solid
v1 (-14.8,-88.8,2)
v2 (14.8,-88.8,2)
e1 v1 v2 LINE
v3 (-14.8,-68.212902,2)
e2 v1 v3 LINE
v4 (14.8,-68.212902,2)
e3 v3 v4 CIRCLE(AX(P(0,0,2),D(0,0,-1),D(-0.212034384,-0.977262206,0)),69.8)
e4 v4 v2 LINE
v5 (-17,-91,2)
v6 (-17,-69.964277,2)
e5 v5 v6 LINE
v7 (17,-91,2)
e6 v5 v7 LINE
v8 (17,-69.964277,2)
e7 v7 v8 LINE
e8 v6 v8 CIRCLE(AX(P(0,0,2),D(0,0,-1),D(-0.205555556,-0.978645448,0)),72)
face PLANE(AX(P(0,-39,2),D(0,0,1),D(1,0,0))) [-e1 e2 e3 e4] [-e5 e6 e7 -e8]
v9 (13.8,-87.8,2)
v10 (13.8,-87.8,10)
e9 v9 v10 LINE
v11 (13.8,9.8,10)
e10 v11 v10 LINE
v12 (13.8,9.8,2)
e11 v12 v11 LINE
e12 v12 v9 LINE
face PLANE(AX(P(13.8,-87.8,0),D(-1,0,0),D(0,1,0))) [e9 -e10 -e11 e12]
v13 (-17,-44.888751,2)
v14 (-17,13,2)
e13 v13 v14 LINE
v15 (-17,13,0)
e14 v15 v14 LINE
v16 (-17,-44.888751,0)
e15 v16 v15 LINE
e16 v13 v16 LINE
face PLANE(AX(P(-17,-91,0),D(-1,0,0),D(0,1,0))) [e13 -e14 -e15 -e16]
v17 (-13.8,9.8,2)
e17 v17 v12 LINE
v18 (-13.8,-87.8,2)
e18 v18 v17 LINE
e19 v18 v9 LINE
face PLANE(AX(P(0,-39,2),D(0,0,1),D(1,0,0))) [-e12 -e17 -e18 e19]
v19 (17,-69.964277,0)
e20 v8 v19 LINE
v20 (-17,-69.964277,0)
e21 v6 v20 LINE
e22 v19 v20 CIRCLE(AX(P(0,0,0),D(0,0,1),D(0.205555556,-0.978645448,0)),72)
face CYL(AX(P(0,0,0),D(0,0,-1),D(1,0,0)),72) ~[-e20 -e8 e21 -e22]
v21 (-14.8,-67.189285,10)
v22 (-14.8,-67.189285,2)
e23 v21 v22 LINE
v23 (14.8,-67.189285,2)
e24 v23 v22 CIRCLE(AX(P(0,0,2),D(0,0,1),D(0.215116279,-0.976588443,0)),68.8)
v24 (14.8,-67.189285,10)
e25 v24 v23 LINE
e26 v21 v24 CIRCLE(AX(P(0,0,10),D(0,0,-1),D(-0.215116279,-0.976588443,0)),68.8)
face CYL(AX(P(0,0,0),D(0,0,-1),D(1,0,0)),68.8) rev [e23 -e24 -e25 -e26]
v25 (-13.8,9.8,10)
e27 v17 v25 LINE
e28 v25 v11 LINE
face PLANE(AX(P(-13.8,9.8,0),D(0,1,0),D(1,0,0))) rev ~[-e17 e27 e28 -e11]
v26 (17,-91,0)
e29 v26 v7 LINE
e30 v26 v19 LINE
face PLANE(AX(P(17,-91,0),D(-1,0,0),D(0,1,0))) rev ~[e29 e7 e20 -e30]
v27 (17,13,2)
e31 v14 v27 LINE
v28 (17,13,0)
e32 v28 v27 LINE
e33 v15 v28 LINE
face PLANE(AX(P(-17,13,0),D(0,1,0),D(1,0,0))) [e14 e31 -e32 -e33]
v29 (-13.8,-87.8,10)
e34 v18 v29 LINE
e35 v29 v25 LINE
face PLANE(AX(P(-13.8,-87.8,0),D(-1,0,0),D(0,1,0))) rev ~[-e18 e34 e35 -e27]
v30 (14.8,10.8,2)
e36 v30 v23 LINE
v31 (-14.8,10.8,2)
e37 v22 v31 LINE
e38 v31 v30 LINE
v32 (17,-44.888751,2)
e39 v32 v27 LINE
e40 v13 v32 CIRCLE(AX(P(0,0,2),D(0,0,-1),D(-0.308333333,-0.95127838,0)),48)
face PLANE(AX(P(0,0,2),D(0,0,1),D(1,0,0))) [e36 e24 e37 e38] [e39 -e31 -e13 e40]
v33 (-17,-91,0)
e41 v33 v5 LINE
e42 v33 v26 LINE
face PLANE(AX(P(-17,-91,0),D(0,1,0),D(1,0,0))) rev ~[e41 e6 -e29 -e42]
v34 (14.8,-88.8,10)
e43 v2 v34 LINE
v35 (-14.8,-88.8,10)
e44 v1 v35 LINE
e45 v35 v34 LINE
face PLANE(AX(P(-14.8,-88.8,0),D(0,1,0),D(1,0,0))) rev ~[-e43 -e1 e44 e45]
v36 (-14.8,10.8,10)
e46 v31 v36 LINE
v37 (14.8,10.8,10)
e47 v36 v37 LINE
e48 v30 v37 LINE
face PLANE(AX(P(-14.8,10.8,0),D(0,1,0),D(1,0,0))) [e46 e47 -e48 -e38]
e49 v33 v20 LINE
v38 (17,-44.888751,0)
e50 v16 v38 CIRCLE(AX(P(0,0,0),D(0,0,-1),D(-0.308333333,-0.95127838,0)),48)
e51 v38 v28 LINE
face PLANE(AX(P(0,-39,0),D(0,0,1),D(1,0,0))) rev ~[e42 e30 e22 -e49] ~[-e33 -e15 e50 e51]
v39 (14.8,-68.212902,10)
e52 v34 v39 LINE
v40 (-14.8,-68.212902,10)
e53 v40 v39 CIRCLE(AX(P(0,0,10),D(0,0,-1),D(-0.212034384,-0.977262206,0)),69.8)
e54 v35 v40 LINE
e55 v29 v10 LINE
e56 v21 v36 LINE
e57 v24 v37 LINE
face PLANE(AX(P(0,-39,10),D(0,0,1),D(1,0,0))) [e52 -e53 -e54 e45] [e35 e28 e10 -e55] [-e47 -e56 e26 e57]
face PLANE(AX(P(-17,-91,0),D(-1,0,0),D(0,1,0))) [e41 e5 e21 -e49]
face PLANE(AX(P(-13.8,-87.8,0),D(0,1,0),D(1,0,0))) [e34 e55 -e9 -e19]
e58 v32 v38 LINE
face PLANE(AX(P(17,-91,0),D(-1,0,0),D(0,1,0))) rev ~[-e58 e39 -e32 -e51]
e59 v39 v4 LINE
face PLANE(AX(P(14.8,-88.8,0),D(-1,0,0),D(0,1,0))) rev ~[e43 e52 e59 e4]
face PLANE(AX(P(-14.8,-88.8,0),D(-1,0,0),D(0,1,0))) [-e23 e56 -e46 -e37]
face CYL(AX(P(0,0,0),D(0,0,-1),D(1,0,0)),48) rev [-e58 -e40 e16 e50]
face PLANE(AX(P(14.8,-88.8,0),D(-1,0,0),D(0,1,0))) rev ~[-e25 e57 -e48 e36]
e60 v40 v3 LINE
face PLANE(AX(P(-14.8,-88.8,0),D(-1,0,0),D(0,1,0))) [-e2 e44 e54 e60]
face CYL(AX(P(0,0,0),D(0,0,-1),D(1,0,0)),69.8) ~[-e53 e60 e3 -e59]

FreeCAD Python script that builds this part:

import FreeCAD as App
import Part
import Sketcher

doc = App.newDocument("Part")
params = doc.addObject("Spreadsheet::Sheet", "Params")
for row, (alias, value) in enumerate([
    ("sketch1_diameter", "139.6 mm"),
    ("sketch1_diameter2", "137.6 mm"),
    ("pad1_length", "10 mm"),
    ("sketch2_width", "29.6 mm"),
    ("sketch2_width2", "27.6 mm"),
    ("sketch2_height", "99.6 mm"),
    ("sketch2_height2", "97.6 mm"),
    ("pad2_length", "10 mm"),
    ("sketch3_diameter", "96 mm"),
    ("sketch3_diameter2", "137.6 mm"),
    ("pad3_length", "2 mm"),
    ("sketch4_diameter", "144 mm"),
    ("sketch4_diameter2", "139.6 mm"),
    ("pad4_length", "2 mm"),
    ("sketch5_width", "34 mm"),
    ("sketch5_height", "104 mm"),
    ("sketch5_width2", "29.6 mm"),
    ("sketch5_height2", "99.6 mm"),
    ("pad5_length", "2 mm"),
    ("sketch6_width", "27.6 mm"),
    ("sketch6_height", "97.6 mm"),
    ("pad6_length", "2 mm"),
    ("sketch7_height", "8 mm"),
    ("sketch7_width", "27.6 mm"),
    ("pocket1_length", "70 mm"),
], start=1):
    params.set(f"A{row}", alias)
    params.set(f"B{row}", "=" + value)
    params.setAlias(f"B{row}", alias)

body = doc.addObject("PartDesign::Body", "Body")

# Sketch on XY plane
sketch1 = doc.addObject("Sketcher::SketchObject", "Sketch")
body.addObject(sketch1)
sketch1.AttachmentSupport = (doc.XY_Plane, [""])
sketch1.MapMode = "FlatFace"
sketch1.addGeometry([
    Part.Circle(App.Vector(0, 0, 0), App.Vector(0, 0, 1), 70),
    Part.Circle(App.Vector(0, 0, 0), App.Vector(0, 0, 1), 69),
], False)
sketch1.addConstraint([
    Sketcher.Constraint("Coincident", 0, 3, -1, 1),
    Sketcher.Constraint("Coincident", 1, 3, -1, 1),
    Sketcher.Constraint("Diameter", 0, 139.6),
    Sketcher.Constraint("Diameter", 1, 137.6),
])
sketch1.setExpression("Constraints[2]", "Params.sketch1_diameter")
sketch1.setExpression("Constraints[3]", "Params.sketch1_diameter2")
pad1 = doc.addObject("PartDesign::Pad", "Pad")
body.addObject(pad1)
pad1.Profile = sketch1
pad1.setExpression("Length", "Params.pad1_length")

# Sketch on XY plane
sketch2 = doc.addObject("Sketcher::SketchObject", "Sketch001")
body.addObject(sketch2)
sketch2.AttachmentSupport = (doc.XY_Plane, [""])
sketch2.MapMode = "FlatFace"
sketch2.addGeometry([
    Part.LineSegment(App.Vector(-15, 11, 0), App.Vector(-15, -89, 0)),  # 0
    Part.LineSegment(App.Vector(-15, -89, 0), App.Vector(15, -89, 0)),  # 1
    Part.LineSegment(App.Vector(15, -89, 0), App.Vector(15, 11, 0)),  # 2
    Part.LineSegment(App.Vector(15, 11, 0), App.Vector(-15, 11, 0)),  # 3
    Part.LineSegment(App.Vector(14, -88, 0), App.Vector(-14, -88, 0)),  # 4
    Part.LineSegment(App.Vector(-14, -88, 0), App.Vector(-14, 10, 0)),  # 5
    Part.LineSegment(App.Vector(-14, 10, 0), App.Vector(14, 10, 0)),  # 6
    Part.LineSegment(App.Vector(14, 10, 0), App.Vector(14, -88, 0)),  # 7
], False)
sketch2.addConstraint([
    Sketcher.Constraint("Coincident", 0, 2, 1, 1),
    Sketcher.Constraint("Coincident", 1, 2, 2, 1),
    Sketcher.Constraint("Coincident", 2, 2, 3, 1),
    Sketcher.Constraint("Coincident", 3, 2, 0, 1),
    Sketcher.Constraint("Coincident", 4, 2, 5, 1),
    Sketcher.Constraint("Coincident", 5, 2, 6, 1),
    Sketcher.Constraint("Coincident", 6, 2, 7, 1),
    Sketcher.Constraint("Coincident", 7, 2, 4, 1),
    Sketcher.Constraint("Vertical", 0),
    Sketcher.Constraint("Horizontal", 1),
    Sketcher.Constraint("Vertical", 2),
    Sketcher.Constraint("Horizontal", 3),
    Sketcher.Constraint("Horizontal", 4),
    Sketcher.Constraint("Vertical", 5),
    Sketcher.Constraint("Horizontal", 6),
    Sketcher.Constraint("Vertical", 7),
    Sketcher.Constraint("DistanceX", 1, 1, 1, 2, 29.6),
    Sketcher.Constraint("DistanceX", 4, 2, 4, 1, 27.6),
    Sketcher.Constraint("DistanceY", 0, 2, 0, 1, 99.6),
    Sketcher.Constraint("DistanceY", 5, 1, 5, 2, 97.6),
    Sketcher.Constraint("DistanceX", 0, 2, 4, 2, 1.0),
    Sketcher.Constraint("DistanceY", 0, 2, 4, 2, 1.0),
    Sketcher.Constraint("DistanceX", 0, 2, -1, 1, 14.8),
    Sketcher.Constraint("DistanceY", 0, 2, -1, 1, 88.8),
])
sketch2.setExpression("Constraints[16]", "Params.sketch2_width")
sketch2.setExpression("Constraints[17]", "Params.sketch2_width2")
sketch2.setExpression("Constraints[18]", "Params.sketch2_height")
sketch2.setExpression("Constraints[19]", "Params.sketch2_height2")
pad2 = doc.addObject("PartDesign::Pad", "Pad001")
body.addObject(pad2)
pad2.Profile = sketch2
pad2.setExpression("Length", "Params.pad2_length")

# Sketch on XY plane
sketch3 = doc.addObject("Sketcher::SketchObject", "Sketch002")
body.addObject(sketch3)
sketch3.AttachmentSupport = (doc.XY_Plane, [""])
sketch3.MapMode = "FlatFace"
sketch3.addGeometry([
    Part.Circle(App.Vector(0, 0, 0), App.Vector(0, 0, 1), 69),
    Part.Circle(App.Vector(0, 0, 0), App.Vector(0, 0, 1), 48),
], False)
sketch3.addConstraint([
    Sketcher.Constraint("Coincident", 0, 3, -1, 1),
    Sketcher.Constraint("Coincident", 1, 3, -1, 1),
    Sketcher.Constraint("Diameter", 1, 96.0),
    Sketcher.Constraint("Diameter", 0, 137.6),
])
sketch3.setExpression("Constraints[2]", "Params.sketch3_diameter")
sketch3.setExpression("Constraints[3]", "Params.sketch3_diameter2")
pad3 = doc.addObject("PartDesign::Pad", "Pad002")
body.addObject(pad3)
pad3.Profile = sketch3
pad3.setExpression("Length", "Params.pad3_length")

# Sketch on XY plane
sketch4 = doc.addObject("Sketcher::SketchObject", "Sketch003")
body.addObject(sketch4)
sketch4.AttachmentSupport = (doc.XY_Plane, [""])
sketch4.MapMode = "FlatFace"
sketch4.addGeometry([
    Part.Circle(App.Vector(0, 0, 0), App.Vector(0, 0, 1), 72),
    Part.Circle(App.Vector(0, 0, 0), App.Vector(0, 0, 1), 70),
], False)
sketch4.addConstraint([
    Sketcher.Constraint("Coincident", 0, 3, -1, 1),
    Sketcher.Constraint("Coincident", 1, 3, -1, 1),
    Sketcher.Constraint("Diameter", 0, 144.0),
    Sketcher.Constraint("Diameter", 1, 139.6),
])
sketch4.setExpression("Constraints[2]", "Params.sketch4_diameter")
sketch4.setExpression("Constraints[3]", "Params.sketch4_diameter2")
pad4 = doc.addObject("PartDesign::Pad", "Pad003")
body.addObject(pad4)
pad4.Profile = sketch4
pad4.setExpression("Length", "Params.pad4_length")

# Sketch on XY plane
sketch5 = doc.addObject("Sketcher::SketchObject", "Sketch004")
body.addObject(sketch5)
sketch5.AttachmentSupport = (doc.XY_Plane, [""])
sketch5.MapMode = "FlatFace"
sketch5.addGeometry([
    Part.LineSegment(App.Vector(-17, 13, 0), App.Vector(-17, -91, 0)),  # 0
    Part.LineSegment(App.Vector(-17, -91, 0), App.Vector(17, -91, 0)),  # 1
    Part.LineSegment(App.Vector(17, -91, 0), App.Vector(17, 13, 0)),  # 2
    Part.LineSegment(App.Vector(17, 13, 0), App.Vector(-17, 13, 0)),  # 3
    Part.LineSegment(App.Vector(15, -89, 0), App.Vector(-15, -89, 0)),  # 4
    Part.LineSegment(App.Vector(-15, -89, 0), App.Vector(-15, 11, 0)),  # 5
    Part.LineSegment(App.Vector(-15, 11, 0), App.Vector(15, 11, 0)),  # 6
    Part.LineSegment(App.Vector(15, 11, 0), App.Vector(15, -89, 0)),  # 7
], False)
sketch5.addConstraint([
    Sketcher.Constraint("Coincident", 0, 2, 1, 1),
    Sketcher.Constraint("Coincident", 1, 2, 2, 1),
    Sketcher.Constraint("Coincident", 2, 2, 3, 1),
    Sketcher.Constraint("Coincident", 3, 2, 0, 1),
    Sketcher.Constraint("Coincident", 4, 2, 5, 1),
    Sketcher.Constraint("Coincident", 5, 2, 6, 1),
    Sketcher.Constraint("Coincident", 6, 2, 7, 1),
    Sketcher.Constraint("Coincident", 7, 2, 4, 1),
    Sketcher.Constraint("Vertical", 0),
    Sketcher.Constraint("Horizontal", 1),
    Sketcher.Constraint("Vertical", 2),
    Sketcher.Constraint("Horizontal", 3),
    Sketcher.Constraint("Horizontal", 4),
    Sketcher.Constraint("Vertical", 5),
    Sketcher.Constraint("Horizontal", 6),
    Sketcher.Constraint("Vertical", 7),
    Sketcher.Constraint("DistanceX", 1, 1, 1, 2, 34.0),
    Sketcher.Constraint("DistanceY", 0, 2, 0, 1, 104.0),
    Sketcher.Constraint("DistanceX", 4, 2, 4, 1, 29.6),
    Sketcher.Constraint("DistanceY", 5, 1, 5, 2, 99.6),
    Sketcher.Constraint("DistanceX", 0, 2, -1, 1, 17.0),
    Sketcher.Constraint("DistanceY", 0, 2, -1, 1, 91.0),
    Sketcher.Constraint("DistanceX", 4, 2, -1, 1, 14.8),
    Sketcher.Constraint("DistanceY", 4, 2, -1, 1, 88.8),
])
sketch5.setExpression("Constraints[16]", "Params.sketch5_width")
sketch5.setExpression("Constraints[17]", "Params.sketch5_height")
sketch5.setExpression("Constraints[18]", "Params.sketch5_width2")
sketch5.setExpression("Constraints[19]", "Params.sketch5_height2")
pad5 = doc.addObject("PartDesign::Pad", "Pad004")
body.addObject(pad5)
pad5.Profile = sketch5
pad5.setExpression("Length", "Params.pad5_length")

# Sketch on XY plane
sketch6 = doc.addObject("Sketcher::SketchObject", "Sketch005")
body.addObject(sketch6)
sketch6.AttachmentSupport = (doc.XY_Plane, [""])
sketch6.MapMode = "FlatFace"
sketch6.addGeometry([
    Part.LineSegment(App.Vector(-14, 10, 0), App.Vector(-14, -88, 0)),
    Part.LineSegment(App.Vector(-14, -88, 0), App.Vector(14, -88, 0)),
    Part.LineSegment(App.Vector(14, -88, 0), App.Vector(14, 10, 0)),
    Part.LineSegment(App.Vector(14, 10, 0), App.Vector(-14, 10, 0)),
], False)
sketch6.addConstraint([
    Sketcher.Constraint("Coincident", 0, 2, 1, 1),
    Sketcher.Constraint("Coincident", 1, 2, 2, 1),
    Sketcher.Constraint("Coincident", 2, 2, 3, 1),
    Sketcher.Constraint("Coincident", 3, 2, 0, 1),
    Sketcher.Constraint("Vertical", 0),
    Sketcher.Constraint("Horizontal", 1),
    Sketcher.Constraint("Vertical", 2),
    Sketcher.Constraint("Horizontal", 3),
    Sketcher.Constraint("DistanceX", 1, 1, 1, 2, 27.6),
    Sketcher.Constraint("DistanceY", 0, 2, 0, 1, 97.6),
    Sketcher.Constraint("DistanceX", 0, 2, -1, 1, 13.8),
    Sketcher.Constraint("DistanceY", 0, 2, -1, 1, 87.8),
])
sketch6.setExpression("Constraints[8]", "Params.sketch6_width")
sketch6.setExpression("Constraints[9]", "Params.sketch6_height")
pad6 = doc.addObject("PartDesign::Pad", "Pad005")
body.addObject(pad6)
pad6.Profile = sketch6
pad6.setExpression("Length", "Params.pad6_length")

# Sketch on XZ plane
sketch7 = doc.addObject("Sketcher::SketchObject", "Sketch006")
body.addObject(sketch7)
sketch7.AttachmentSupport = (doc.XZ_Plane, [""])
sketch7.MapMode = "FlatFace"
sketch7.addGeometry([
    Part.LineSegment(App.Vector(-14, 10, 0), App.Vector(-14, 2, 0)),
    Part.LineSegment(App.Vector(-14, 2, 0), App.Vector(14, 2, 0)),
    Part.LineSegment(App.Vector(14, 2, 0), App.Vector(14, 10, 0)),
    Part.LineSegment(App.Vector(14, 10, 0), App.Vector(-14, 10, 0)),
], False)
sketch7.addConstraint([
    Sketcher.Constraint("Coincident", 0, 2, 1, 1),
    Sketcher.Constraint("Coincident", 1, 2, 2, 1),
    Sketcher.Constraint("Coincident", 2, 2, 3, 1),
    Sketcher.Constraint("Coincident", 3, 2, 0, 1),
    Sketcher.Constraint("Vertical", 0),
    Sketcher.Constraint("Horizontal", 1),
    Sketcher.Constraint("Vertical", 2),
    Sketcher.Constraint("Horizontal", 3),
    Sketcher.Constraint("DistanceY", 0, 2, 0, 1, 8.0),
    Sketcher.Constraint("DistanceX", 1, 1, 1, 2, 27.6),
    Sketcher.Constraint("DistanceY", -1, 1, 0, 2, 2.0),
    Sketcher.Constraint("DistanceX", 0, 2, -1, 1, 13.8),
])
sketch7.setExpression("Constraints[8]", "Params.sketch7_height")
sketch7.setExpression("Constraints[9]", "Params.sketch7_width")
pocket1 = doc.addObject("PartDesign::Pocket", "Pocket")
body.addObject(pocket1)
pocket1.Profile = sketch7
pocket1.setExpression("Length", "Params.pocket1_length")
pocket1.Reversed = True

doc.recompute()
